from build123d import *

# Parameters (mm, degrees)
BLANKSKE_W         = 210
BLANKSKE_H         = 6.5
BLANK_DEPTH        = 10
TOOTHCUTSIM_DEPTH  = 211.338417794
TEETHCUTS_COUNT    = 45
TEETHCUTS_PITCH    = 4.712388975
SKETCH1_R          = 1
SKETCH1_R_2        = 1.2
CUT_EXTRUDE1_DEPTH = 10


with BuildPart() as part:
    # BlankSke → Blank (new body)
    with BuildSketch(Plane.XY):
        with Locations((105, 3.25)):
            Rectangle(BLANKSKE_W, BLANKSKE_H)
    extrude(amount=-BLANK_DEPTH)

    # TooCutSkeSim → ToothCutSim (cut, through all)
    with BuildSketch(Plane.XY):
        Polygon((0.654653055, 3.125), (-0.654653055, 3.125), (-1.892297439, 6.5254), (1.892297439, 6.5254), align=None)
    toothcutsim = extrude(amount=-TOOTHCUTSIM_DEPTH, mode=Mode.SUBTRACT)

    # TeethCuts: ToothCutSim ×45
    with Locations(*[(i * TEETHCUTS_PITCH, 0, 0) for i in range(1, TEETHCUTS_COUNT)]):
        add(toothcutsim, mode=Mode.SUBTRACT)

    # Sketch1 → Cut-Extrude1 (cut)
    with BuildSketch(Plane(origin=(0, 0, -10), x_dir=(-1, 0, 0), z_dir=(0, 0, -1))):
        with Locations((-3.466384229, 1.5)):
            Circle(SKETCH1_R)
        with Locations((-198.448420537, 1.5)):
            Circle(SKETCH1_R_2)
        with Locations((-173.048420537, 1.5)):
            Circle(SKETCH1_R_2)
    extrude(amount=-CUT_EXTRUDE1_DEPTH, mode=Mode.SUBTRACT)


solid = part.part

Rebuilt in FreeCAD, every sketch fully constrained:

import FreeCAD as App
import Part
import Sketcher
Q = App.Units.Quantity


def add_polygon(sketch, points):
    """Adds a closed chain of lines whose ends are joined by coincident constraints."""
    first, n = sketch.GeometryCount, len(points)
    for a, b in zip(points, points[1:] + points[:1]):
        sketch.addGeometry(Part.LineSegment(App.Vector(*a, 0), App.Vector(*b, 0)), False)
    for i in range(n):
        sketch.addConstraint(Sketcher.Constraint("Coincident", first + i, 2, first + (i + 1) % n, 1))

doc = App.newDocument("Part")
body = doc.addObject("PartDesign::Body", "Body")

sketch1 = doc.addObject("Sketcher::SketchObject", "Sketch")
body.addObject(sketch1)
sketch1.AttachmentSupport = (doc.XY_Plane, [""])
sketch1.MapMode = "FlatFace"
add_polygon(sketch1, [(0, 6.5), (0, 0), (210, 0), (210, 6.5)])
sketch1.addConstraint([
    Sketcher.Constraint("Vertical", 0),
    Sketcher.Constraint("Horizontal", 1),
    Sketcher.Constraint("Vertical", 2),
    Sketcher.Constraint("Horizontal", 3),
    Sketcher.Constraint("Coincident", 0, 2, -1, 1),
    Sketcher.Constraint("DistanceX", 1, 1, 1, 2, Q("210 mm")),
    Sketcher.Constraint("DistanceY", 0, 2, 0, 1, Q("6.5 mm")),
])
pad1 = doc.addObject("PartDesign::Pad", "Pad")
body.addObject(pad1)
pad1.Profile = sketch1
pad1.Length = 10
pad1.Reversed = True

sketch2 = doc.addObject("Sketcher::SketchObject", "Sketch001")
body.addObject(sketch2)
sketch2.AttachmentSupport = (doc.XY_Plane, [""])
sketch2.MapMode = "FlatFace"
add_polygon(sketch2, [(-0.654653, 3.125), (0.654653, 3.125), (1.892297, 6.5254), (-1.892297, 6.5254)])
sketch2.addConstraint([
    Sketcher.Constraint("Horizontal", 0),
    Sketcher.Constraint("Horizontal", 2),
    Sketcher.Constraint("Equal", 1, 3),
    Sketcher.Constraint("Angle", 1, Q("70 deg")),
    Sketcher.Constraint("DistanceY", -1, 1, 0, 2, Q("3.125 mm")),
    Sketcher.Constraint("DistanceY", -1, 1, 1, 2, Q("6.5254 mm")),
    Sketcher.Constraint("DistanceX", 0, 1, 0, 2, Q("1.309306 mm")),
    Sketcher.Constraint("DistanceX", -1, 1, 0, 2, Q("0.654653 mm")),
])
pocket1 = doc.addObject("PartDesign::Pocket", "Pocket")
body.addObject(pocket1)
pocket1.Profile = sketch2
pocket1.Type = "ThroughAll"
doc.recompute()

linearpattern = doc.addObject("PartDesign::LinearPattern", "LinearPattern")
body.addObject(linearpattern)
linearpattern.Originals = [pocket1]
linearpattern.Direction = (doc.X_Axis, [""])
linearpattern.Mode = "offset"
linearpattern.Offset = 4.712389
linearpattern.Occurrences = 45
body.Tip = linearpattern

sketch3 = doc.addObject("Sketcher::SketchObject", "Sketch002")
body.addObject(sketch3)
sketch3.AttachmentSupport = (doc.XY_Plane, [""])
sketch3.MapMode = "FlatFace"
sketch3.AttachmentOffset = App.Placement(App.Vector(0, 0, -10), App.Rotation())
sketch3.addGeometry([
    Part.Circle(App.Vector(3.466384, 1.5, 0), App.Vector(0, 0, 1), 1),
    Part.Circle(App.Vector(198.448421, 1.5, 0), App.Vector(0, 0, 1), 1.2),
    Part.Circle(App.Vector(173.048421, 1.5, 0), App.Vector(0, 0, 1), 1.2),
], False)
sketch3.addConstraint([
    Sketcher.Constraint("Equal", 1, 2),
    Sketcher.Constraint("Horizontal", 0, 3, 1, 3),
    Sketcher.Constraint("Horizontal", 1, 3, 2, 3),
    Sketcher.Constraint("Diameter", 0, Q("2 mm")),
    Sketcher.Constraint("Diameter", 1, Q("2.4 mm")),
    Sketcher.Constraint("DistanceY", -1, 1, 0, 3, Q("1.5 mm")),
    Sketcher.Constraint("DistanceX", 2, 3, 1, 3, Q("25.4 mm")),
    Sketcher.Constraint("DistanceX", -1, 1, 1, 3, Q("198.448421 mm")),
    Sketcher.Constraint("DistanceX", -1, 1, 0, 3, Q("3.466384 mm")),
])
pocket2 = doc.addObject("PartDesign::Pocket", "Pocket001")
body.addObject(pocket2)
pocket2.Profile = sketch3
pocket2.Length = 10
pocket2.Reversed = True

doc.recompute()
